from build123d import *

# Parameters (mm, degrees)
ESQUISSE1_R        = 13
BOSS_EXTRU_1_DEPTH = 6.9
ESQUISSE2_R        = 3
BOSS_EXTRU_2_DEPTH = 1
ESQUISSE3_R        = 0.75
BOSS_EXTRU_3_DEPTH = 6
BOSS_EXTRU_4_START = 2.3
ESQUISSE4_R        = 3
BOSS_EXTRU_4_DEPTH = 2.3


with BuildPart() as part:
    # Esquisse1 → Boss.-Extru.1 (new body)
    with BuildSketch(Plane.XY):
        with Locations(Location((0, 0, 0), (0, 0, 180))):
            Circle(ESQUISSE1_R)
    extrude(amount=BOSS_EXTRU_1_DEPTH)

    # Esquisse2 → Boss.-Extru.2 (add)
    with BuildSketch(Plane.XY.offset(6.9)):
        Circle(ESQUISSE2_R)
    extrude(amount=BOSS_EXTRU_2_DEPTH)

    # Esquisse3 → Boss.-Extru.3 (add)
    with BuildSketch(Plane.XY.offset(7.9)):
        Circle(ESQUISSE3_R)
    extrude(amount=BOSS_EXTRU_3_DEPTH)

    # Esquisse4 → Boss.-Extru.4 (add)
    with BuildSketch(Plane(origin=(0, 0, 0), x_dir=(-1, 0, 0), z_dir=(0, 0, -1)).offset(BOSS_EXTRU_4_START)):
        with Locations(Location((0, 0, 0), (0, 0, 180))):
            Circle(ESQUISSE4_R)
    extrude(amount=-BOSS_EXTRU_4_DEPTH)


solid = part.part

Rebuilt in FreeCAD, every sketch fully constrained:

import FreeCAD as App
import Part
import Sketcher

doc = App.newDocument("Part")
body = doc.addObject("PartDesign::Body", "Body")

# Sketch on XY plane
sketch1 = body.newObject("Sketcher::SketchObject", "Sketch")
sketch1.AttachmentSupport = (doc.getObject("XY_Plane"), [""])
sketch1.MapMode = "FlatFace"
sketch1.addGeometry(Part.Circle(App.Vector(0, 0, 0), App.Vector(0, 0, 1), 13), False)
sketch1.addConstraint([
    Sketcher.Constraint("Coincident", 0, 3, -1, 1),
    Sketcher.Constraint("Diameter", 0, 26.0),
])
pad1 = body.newObject("PartDesign::Pad", "Pad")
pad1.Profile = sketch1
pad1.Length = 6.9

# Sketch on XY plane
sketch2 = body.newObject("Sketcher::SketchObject", "Sketch001")
sketch2.AttachmentSupport = (doc.getObject("XY_Plane"), [""])
sketch2.MapMode = "FlatFace"
sketch2.AttachmentOffset = App.Placement(App.Vector(0, 0, 6.9), App.Rotation())
sketch2.addGeometry(Part.Circle(App.Vector(0, 0, 0), App.Vector(0, 0, 1), 3), False)
sketch2.addConstraint([
    Sketcher.Constraint("Coincident", 0, 3, -1, 1),
    Sketcher.Constraint("Diameter", 0, 6.0),
])
pad2 = body.newObject("PartDesign::Pad", "Pad001")
pad2.Profile = sketch2
pad2.Length = 1

# Sketch on XY plane
sketch3 = body.newObject("Sketcher::SketchObject", "Sketch002")
sketch3.AttachmentSupport = (doc.getObject("XY_Plane"), [""])
sketch3.MapMode = "FlatFace"
sketch3.AttachmentOffset = App.Placement(App.Vector(0, 0, 7.9), App.Rotation())
sketch3.addGeometry(Part.Circle(App.Vector(0, 0, 0), App.Vector(0, 0, 1), 0.8), False)
sketch3.addConstraint([
    Sketcher.Constraint("Coincident", 0, 3, -1, 1),
    Sketcher.Constraint("Diameter", 0, 1.5),
])
pad3 = body.newObject("PartDesign::Pad", "Pad002")
pad3.Profile = sketch3
pad3.Length = 6

# Sketch on XY plane
sketch4 = body.newObject("Sketcher::SketchObject", "Sketch003")
sketch4.AttachmentSupport = (doc.getObject("XY_Plane"), [""])
sketch4.MapMode = "FlatFace"
sketch4.AttachmentOffset = App.Placement(App.Vector(0, 0, -2.3), App.Rotation())
sketch4.addGeometry(Part.Circle(App.Vector(0, 0, 0), App.Vector(0, 0, 1), 3), False)
sketch4.addConstraint([
    Sketcher.Constraint("Coincident", 0, 3, -1, 1),
    Sketcher.Constraint("Diameter", 0, 6.0),
])
pad4 = body.newObject("PartDesign::Pad", "Pad003")
pad4.Profile = sketch4
pad4.Length = 2.3

doc.recompute()
